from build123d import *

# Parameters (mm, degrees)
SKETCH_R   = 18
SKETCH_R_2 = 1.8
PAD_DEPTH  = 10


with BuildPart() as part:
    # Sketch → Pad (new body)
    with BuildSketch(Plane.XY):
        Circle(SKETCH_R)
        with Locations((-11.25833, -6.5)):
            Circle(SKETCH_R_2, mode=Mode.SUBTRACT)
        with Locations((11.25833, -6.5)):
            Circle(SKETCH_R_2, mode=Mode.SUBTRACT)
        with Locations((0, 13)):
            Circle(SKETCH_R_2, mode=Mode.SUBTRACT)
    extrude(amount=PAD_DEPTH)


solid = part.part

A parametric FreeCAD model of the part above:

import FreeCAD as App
import Part
import Sketcher

V = App.Vector

doc = App.newDocument("Part")
body = doc.addObject("PartDesign::Body", "Body")

# Sketch on XY plane
sketch1 = body.newObject("Sketcher::SketchObject", "Sketch")
sketch1.AttachmentSupport = (doc.getObject("XY_Plane"), [""])
sketch1.MapMode = "FlatFace"
sketch1.addGeometry([
    Part.Circle(V(0, 0, 0), V(0, 0, 1), 18),
    Part.Circle(V(-11.25833, -6.5, 0), V(0, 0, 1), 1.8),
    Part.Circle(V(11.25833, -6.5, 0), V(0, 0, 1), 1.8),
    Part.Circle(V(0, 13, 0), V(0, 0, 1), 1.8),
], False)
sketch1.addConstraint([
    Sketcher.Constraint("Coincident", 0, 3, -1, 1),
    Sketcher.Constraint("Equal", 1, 2),
    Sketcher.Constraint("Equal", 2, 3),
    Sketcher.Constraint("Symmetric", 1, 3, 2, 3, -2),
    Sketcher.Constraint("PointOnObject", 3, 3, -2),
    Sketcher.Constraint("Diameter", 0, 36.0),
    Sketcher.Constraint("Diameter", 1, 3.6),
    Sketcher.Constraint("DistanceY", -1, 1, 3, 3, 13.0),
    Sketcher.Constraint("DistanceY", 1, 3, -1, 1, 6.5),
    Sketcher.Constraint("DistanceX", 1, 3, -1, 1, 11.25833),
])
pad1 = body.newObject("PartDesign::Pad", "Pad")
pad1.Profile = sketch1
pad1.Length = 10

doc.recompute()
